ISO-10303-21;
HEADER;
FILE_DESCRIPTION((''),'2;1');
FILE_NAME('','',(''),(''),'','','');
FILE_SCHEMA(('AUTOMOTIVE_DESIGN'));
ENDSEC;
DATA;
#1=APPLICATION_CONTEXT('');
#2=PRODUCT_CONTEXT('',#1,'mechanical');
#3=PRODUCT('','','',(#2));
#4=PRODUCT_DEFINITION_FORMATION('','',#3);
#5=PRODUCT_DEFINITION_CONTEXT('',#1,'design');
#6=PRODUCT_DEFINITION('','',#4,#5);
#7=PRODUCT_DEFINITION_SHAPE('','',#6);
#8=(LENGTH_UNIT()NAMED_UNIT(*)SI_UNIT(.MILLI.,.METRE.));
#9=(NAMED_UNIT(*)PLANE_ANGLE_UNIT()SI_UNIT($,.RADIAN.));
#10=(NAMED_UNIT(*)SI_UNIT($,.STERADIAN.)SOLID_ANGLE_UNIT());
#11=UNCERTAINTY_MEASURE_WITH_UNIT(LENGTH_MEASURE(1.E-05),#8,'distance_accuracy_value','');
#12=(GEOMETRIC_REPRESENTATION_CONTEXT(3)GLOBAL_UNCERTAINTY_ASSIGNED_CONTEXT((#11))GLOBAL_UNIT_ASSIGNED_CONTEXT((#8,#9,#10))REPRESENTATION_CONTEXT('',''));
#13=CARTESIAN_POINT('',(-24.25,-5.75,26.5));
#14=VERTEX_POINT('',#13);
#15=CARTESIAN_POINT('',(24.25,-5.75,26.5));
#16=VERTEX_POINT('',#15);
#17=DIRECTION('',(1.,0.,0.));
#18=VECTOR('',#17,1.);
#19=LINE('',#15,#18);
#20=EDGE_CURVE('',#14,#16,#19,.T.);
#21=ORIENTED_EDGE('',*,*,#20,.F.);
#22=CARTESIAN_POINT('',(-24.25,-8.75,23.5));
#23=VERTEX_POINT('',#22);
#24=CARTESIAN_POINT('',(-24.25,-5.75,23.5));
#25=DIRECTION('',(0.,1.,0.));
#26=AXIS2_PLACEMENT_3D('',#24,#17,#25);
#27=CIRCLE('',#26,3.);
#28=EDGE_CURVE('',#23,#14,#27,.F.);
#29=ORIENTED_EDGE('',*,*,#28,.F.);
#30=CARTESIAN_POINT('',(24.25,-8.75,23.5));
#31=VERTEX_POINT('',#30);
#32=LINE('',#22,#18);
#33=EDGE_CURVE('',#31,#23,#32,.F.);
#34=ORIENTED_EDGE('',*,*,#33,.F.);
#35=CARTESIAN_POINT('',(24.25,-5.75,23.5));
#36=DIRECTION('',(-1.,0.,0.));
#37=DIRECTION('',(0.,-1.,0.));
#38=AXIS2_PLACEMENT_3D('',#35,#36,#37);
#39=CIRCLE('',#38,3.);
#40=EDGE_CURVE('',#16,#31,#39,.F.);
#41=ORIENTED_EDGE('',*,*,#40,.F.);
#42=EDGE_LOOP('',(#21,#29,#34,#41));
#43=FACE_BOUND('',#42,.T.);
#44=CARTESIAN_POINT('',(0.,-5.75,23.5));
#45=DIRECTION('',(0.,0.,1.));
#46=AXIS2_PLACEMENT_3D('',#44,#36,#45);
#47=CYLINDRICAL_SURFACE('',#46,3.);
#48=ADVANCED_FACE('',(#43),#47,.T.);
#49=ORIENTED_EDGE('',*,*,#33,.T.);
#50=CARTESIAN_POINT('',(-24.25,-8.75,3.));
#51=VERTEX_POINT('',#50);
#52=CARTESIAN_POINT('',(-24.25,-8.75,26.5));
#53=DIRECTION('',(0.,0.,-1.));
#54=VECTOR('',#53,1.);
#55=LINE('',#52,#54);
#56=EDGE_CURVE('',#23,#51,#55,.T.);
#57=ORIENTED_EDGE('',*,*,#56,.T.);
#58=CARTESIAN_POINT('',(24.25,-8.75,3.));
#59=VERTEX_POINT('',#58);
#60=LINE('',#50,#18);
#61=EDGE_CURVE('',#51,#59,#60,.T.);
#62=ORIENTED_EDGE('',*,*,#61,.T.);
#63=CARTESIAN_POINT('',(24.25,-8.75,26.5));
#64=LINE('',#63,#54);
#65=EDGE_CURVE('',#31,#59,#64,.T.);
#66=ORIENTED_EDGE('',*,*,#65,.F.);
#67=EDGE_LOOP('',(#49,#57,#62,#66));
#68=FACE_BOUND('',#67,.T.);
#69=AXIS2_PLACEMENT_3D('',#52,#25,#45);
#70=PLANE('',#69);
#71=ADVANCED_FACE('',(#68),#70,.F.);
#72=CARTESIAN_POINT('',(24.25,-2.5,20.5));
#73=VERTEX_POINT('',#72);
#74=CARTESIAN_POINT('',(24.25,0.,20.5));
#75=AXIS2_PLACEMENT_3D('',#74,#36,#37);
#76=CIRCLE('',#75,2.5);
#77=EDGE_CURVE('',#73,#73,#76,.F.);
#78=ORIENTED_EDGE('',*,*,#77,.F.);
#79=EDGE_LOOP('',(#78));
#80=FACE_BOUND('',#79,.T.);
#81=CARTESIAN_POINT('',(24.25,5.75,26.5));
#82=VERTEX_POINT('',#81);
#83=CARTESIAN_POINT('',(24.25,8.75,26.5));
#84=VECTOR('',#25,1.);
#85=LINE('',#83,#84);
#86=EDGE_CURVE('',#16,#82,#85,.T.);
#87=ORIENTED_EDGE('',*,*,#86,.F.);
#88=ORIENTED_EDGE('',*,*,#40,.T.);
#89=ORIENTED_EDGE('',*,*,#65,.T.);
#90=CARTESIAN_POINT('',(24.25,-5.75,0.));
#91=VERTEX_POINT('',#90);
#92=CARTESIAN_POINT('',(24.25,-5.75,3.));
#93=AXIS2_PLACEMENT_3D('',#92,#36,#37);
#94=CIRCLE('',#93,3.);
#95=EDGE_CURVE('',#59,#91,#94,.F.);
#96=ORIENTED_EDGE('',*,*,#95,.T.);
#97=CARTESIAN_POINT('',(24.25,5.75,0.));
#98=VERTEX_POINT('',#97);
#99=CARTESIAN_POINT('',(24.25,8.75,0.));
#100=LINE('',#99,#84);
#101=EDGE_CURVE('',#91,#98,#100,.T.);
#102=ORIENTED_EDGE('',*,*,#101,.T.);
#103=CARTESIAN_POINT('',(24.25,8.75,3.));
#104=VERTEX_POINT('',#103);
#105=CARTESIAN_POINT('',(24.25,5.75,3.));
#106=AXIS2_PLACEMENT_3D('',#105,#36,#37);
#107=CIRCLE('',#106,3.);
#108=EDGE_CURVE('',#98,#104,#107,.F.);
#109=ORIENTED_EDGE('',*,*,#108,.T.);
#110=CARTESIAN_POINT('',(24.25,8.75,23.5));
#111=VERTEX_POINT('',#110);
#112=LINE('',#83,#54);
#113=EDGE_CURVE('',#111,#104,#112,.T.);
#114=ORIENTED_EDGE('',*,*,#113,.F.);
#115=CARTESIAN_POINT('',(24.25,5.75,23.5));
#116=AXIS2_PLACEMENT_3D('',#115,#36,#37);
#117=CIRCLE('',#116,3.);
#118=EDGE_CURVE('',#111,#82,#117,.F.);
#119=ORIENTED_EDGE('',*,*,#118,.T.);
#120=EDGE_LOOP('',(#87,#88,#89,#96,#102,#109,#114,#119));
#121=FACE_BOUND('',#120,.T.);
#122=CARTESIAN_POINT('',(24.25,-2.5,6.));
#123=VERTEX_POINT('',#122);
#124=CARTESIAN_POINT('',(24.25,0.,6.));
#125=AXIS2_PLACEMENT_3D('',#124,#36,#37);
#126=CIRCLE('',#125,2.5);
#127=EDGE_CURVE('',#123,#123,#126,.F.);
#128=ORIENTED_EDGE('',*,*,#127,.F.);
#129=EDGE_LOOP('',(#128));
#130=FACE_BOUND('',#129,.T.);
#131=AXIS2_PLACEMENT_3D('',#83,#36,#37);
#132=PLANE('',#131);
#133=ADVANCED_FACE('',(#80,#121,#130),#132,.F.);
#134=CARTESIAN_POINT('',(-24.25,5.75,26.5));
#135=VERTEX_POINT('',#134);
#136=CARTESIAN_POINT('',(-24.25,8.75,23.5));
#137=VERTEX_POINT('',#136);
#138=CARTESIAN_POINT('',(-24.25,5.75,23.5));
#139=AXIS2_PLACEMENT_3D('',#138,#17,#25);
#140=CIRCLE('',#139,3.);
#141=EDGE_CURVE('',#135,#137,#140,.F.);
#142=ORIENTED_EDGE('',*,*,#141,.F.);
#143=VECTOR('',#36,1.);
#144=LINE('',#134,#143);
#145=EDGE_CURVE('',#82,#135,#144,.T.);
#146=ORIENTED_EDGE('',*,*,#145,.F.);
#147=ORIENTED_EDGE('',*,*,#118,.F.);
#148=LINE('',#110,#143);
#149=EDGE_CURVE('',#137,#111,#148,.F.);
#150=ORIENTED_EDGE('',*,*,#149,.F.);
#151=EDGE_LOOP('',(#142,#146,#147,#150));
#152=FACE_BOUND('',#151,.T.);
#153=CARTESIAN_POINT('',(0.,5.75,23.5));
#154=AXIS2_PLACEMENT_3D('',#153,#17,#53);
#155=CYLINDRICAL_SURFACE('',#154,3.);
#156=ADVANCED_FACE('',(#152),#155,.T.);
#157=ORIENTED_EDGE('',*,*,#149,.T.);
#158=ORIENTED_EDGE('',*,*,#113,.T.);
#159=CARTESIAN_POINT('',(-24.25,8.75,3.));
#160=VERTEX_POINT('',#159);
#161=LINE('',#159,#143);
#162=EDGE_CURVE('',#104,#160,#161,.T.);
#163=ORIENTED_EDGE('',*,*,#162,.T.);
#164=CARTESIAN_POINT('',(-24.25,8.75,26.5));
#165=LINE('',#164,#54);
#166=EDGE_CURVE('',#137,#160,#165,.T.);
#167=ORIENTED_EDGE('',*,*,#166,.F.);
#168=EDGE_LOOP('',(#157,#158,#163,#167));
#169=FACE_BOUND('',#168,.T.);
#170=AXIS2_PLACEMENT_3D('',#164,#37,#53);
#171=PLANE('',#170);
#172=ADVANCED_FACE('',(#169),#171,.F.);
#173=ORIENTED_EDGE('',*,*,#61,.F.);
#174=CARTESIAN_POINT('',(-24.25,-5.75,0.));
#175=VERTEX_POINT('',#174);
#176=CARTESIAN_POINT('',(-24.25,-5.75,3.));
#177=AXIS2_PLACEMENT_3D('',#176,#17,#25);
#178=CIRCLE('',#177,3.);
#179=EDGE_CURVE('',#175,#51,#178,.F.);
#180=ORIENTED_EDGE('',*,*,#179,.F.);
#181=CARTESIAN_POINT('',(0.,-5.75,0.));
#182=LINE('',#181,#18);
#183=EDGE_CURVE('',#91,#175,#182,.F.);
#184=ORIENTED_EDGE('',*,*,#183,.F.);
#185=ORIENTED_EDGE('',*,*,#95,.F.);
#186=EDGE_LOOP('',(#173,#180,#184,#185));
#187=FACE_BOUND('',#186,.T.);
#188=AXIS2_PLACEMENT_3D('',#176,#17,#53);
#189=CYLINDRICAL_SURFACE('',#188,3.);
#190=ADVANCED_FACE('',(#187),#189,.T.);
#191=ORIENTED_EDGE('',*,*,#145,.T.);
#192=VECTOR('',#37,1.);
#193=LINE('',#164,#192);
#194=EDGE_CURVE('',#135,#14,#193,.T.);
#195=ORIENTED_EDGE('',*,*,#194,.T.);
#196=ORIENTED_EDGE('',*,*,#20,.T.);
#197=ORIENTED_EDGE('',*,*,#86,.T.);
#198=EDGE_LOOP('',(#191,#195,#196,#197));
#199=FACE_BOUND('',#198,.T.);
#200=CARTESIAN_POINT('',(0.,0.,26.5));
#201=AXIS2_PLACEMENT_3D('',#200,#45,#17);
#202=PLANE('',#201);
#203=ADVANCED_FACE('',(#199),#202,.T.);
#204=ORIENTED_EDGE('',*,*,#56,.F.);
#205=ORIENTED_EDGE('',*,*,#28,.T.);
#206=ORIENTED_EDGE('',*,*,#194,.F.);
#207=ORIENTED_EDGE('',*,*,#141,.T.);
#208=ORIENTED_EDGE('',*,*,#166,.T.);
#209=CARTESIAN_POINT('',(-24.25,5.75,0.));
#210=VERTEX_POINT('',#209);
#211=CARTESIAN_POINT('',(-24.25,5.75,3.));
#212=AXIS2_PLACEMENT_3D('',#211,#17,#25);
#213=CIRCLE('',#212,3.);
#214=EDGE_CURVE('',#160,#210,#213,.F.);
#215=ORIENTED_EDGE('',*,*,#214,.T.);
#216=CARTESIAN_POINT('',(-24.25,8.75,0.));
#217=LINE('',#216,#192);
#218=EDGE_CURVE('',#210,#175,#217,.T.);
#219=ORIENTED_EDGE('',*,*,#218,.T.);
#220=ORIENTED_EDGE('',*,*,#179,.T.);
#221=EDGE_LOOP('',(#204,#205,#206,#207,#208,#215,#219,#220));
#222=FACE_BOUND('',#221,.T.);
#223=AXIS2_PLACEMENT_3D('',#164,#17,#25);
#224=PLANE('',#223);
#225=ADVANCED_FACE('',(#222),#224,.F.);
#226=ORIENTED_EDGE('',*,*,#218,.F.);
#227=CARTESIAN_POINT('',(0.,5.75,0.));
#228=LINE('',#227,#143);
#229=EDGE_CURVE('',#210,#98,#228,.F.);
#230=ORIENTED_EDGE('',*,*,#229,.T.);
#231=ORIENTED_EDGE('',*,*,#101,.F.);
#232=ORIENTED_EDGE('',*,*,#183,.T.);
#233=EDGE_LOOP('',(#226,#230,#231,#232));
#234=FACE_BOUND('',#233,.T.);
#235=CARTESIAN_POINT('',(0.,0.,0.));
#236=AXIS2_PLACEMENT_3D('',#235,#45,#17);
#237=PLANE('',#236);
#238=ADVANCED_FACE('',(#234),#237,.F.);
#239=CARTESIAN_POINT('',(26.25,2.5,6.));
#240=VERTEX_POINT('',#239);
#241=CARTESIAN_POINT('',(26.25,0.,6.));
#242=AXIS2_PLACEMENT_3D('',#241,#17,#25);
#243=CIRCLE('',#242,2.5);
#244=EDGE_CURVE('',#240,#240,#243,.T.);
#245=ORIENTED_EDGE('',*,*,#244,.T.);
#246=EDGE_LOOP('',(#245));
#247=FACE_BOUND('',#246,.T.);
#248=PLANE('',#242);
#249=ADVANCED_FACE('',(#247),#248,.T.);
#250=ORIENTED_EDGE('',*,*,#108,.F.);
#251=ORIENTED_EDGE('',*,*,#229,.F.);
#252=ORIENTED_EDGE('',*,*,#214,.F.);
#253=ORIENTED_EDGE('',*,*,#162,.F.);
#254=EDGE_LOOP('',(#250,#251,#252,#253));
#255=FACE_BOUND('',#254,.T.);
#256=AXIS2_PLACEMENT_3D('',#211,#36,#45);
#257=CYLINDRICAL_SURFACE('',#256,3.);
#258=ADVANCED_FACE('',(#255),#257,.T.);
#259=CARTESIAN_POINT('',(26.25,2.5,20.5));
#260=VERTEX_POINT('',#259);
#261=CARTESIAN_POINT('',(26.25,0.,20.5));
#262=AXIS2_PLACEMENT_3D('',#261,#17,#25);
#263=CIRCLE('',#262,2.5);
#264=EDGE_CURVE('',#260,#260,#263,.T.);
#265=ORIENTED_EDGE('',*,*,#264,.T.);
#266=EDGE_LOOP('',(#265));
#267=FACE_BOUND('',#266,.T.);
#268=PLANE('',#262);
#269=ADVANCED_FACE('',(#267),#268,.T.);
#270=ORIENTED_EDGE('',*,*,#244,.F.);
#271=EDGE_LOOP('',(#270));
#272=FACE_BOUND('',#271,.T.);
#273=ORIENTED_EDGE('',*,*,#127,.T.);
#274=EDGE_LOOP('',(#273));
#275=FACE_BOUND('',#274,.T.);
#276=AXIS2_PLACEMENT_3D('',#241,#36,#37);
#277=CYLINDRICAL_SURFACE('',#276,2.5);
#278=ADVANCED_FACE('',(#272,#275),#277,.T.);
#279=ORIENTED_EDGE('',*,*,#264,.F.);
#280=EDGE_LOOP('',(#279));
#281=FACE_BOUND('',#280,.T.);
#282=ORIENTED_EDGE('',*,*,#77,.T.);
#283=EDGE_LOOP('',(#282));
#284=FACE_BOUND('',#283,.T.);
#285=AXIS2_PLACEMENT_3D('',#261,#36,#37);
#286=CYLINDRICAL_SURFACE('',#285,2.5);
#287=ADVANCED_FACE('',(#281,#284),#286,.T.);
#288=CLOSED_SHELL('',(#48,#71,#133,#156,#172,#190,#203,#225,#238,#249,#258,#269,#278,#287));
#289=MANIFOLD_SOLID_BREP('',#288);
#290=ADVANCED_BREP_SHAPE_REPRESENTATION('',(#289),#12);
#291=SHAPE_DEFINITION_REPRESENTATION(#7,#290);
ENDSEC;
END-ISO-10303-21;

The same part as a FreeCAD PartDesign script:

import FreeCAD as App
import Part
import Sketcher

V = App.Vector
Q = App.Units.Quantity


def edges_at(feature, points):
    """Names of the edges that pass closest to the given points."""
    edges = feature.Shape.Edges
    near = lambda p: min(range(len(edges)), key=lambda i: edges[i].distToShape(Part.Vertex(*p))[0])
    return sorted({f"Edge{near(p) + 1}" for p in points})


def add_polygon(sketch, points):
    """Adds a closed chain of lines whose ends are joined by coincident constraints."""
    first, n = sketch.GeometryCount, len(points)
    for a, b in zip(points, points[1:] + points[:1]):
        sketch.addGeometry(Part.LineSegment(App.Vector(*a, 0), App.Vector(*b, 0)), False)
    for i in range(n):
        sketch.addConstraint(Sketcher.Constraint("Coincident", first + i, 2, first + (i + 1) % n, 1))

doc = App.newDocument("Part")
body = doc.addObject("PartDesign::Body", "Body")

# Sketch on XY plane
sketch1 = body.newObject("Sketcher::SketchObject", "Sketch")
sketch1.AttachmentSupport = (doc.getObject("XY_Plane"), [""])
sketch1.MapMode = "FlatFace"
add_polygon(sketch1, [(-24, 9), (-24, -9), (24, -9), (24, 9)])  # lines 0-3
sketch1.addConstraint([
    Sketcher.Constraint("Vertical", 0),
    Sketcher.Constraint("Horizontal", 1),
    Sketcher.Constraint("Vertical", 2),
    Sketcher.Constraint("Horizontal", 3),
    Sketcher.Constraint("Symmetric", 0, 2, 2, 2, -1, 1),
    Sketcher.Constraint("DistanceX", 1, 1, 1, 2, Q("48.5 mm")),
    Sketcher.Constraint("DistanceY", 0, 2, 0, 1, Q("17.5 mm")),
])
pad1 = body.newObject("PartDesign::Pad", "Pad")
pad1.Profile = sketch1
pad1.Length = 26.5
doc.recompute()

fillet = body.newObject("PartDesign::Fillet", "Fillet")
fillet.Base = (pad1, edges_at(pad1, [
    (0, -8.75, 26.5),
    (0, -8.75, 0),
    (0, 8.75, 0),
    (0, 8.75, 26.5),
]))
fillet.Radius = 3

# Sketch on YZ plane
sketch2 = body.newObject("Sketcher::SketchObject", "Sketch001")
sketch2.AttachmentSupport = (doc.getObject("YZ_Plane"), [""])
sketch2.MapMode = "FlatFace"
sketch2.AttachmentOffset = App.Placement(V(0, 0, 24.25), App.Rotation())
sketch2.addGeometry([
    Part.Circle(V(0, 20.5, 0), V(0, 0, 1), 2.5),
    Part.Circle(V(0, 6, 0), V(0, 0, 1), 2.5),
], False)
sketch2.addConstraint([
    Sketcher.Constraint("Equal", 0, 1),
    Sketcher.Constraint("PointOnObject", 0, 3, -2),
    Sketcher.Constraint("PointOnObject", 1, 3, -2),
    Sketcher.Constraint("Diameter", 0, Q("5 mm")),
    Sketcher.Constraint("DistanceY", -1, 1, 1, 3, Q("6 mm")),
    Sketcher.Constraint("DistanceY", -1, 1, 0, 3, Q("20.5 mm")),
])
pad2 = body.newObject("PartDesign::Pad", "Pad001")
pad2.Profile = sketch2
pad2.Length = 2

doc.recompute()
